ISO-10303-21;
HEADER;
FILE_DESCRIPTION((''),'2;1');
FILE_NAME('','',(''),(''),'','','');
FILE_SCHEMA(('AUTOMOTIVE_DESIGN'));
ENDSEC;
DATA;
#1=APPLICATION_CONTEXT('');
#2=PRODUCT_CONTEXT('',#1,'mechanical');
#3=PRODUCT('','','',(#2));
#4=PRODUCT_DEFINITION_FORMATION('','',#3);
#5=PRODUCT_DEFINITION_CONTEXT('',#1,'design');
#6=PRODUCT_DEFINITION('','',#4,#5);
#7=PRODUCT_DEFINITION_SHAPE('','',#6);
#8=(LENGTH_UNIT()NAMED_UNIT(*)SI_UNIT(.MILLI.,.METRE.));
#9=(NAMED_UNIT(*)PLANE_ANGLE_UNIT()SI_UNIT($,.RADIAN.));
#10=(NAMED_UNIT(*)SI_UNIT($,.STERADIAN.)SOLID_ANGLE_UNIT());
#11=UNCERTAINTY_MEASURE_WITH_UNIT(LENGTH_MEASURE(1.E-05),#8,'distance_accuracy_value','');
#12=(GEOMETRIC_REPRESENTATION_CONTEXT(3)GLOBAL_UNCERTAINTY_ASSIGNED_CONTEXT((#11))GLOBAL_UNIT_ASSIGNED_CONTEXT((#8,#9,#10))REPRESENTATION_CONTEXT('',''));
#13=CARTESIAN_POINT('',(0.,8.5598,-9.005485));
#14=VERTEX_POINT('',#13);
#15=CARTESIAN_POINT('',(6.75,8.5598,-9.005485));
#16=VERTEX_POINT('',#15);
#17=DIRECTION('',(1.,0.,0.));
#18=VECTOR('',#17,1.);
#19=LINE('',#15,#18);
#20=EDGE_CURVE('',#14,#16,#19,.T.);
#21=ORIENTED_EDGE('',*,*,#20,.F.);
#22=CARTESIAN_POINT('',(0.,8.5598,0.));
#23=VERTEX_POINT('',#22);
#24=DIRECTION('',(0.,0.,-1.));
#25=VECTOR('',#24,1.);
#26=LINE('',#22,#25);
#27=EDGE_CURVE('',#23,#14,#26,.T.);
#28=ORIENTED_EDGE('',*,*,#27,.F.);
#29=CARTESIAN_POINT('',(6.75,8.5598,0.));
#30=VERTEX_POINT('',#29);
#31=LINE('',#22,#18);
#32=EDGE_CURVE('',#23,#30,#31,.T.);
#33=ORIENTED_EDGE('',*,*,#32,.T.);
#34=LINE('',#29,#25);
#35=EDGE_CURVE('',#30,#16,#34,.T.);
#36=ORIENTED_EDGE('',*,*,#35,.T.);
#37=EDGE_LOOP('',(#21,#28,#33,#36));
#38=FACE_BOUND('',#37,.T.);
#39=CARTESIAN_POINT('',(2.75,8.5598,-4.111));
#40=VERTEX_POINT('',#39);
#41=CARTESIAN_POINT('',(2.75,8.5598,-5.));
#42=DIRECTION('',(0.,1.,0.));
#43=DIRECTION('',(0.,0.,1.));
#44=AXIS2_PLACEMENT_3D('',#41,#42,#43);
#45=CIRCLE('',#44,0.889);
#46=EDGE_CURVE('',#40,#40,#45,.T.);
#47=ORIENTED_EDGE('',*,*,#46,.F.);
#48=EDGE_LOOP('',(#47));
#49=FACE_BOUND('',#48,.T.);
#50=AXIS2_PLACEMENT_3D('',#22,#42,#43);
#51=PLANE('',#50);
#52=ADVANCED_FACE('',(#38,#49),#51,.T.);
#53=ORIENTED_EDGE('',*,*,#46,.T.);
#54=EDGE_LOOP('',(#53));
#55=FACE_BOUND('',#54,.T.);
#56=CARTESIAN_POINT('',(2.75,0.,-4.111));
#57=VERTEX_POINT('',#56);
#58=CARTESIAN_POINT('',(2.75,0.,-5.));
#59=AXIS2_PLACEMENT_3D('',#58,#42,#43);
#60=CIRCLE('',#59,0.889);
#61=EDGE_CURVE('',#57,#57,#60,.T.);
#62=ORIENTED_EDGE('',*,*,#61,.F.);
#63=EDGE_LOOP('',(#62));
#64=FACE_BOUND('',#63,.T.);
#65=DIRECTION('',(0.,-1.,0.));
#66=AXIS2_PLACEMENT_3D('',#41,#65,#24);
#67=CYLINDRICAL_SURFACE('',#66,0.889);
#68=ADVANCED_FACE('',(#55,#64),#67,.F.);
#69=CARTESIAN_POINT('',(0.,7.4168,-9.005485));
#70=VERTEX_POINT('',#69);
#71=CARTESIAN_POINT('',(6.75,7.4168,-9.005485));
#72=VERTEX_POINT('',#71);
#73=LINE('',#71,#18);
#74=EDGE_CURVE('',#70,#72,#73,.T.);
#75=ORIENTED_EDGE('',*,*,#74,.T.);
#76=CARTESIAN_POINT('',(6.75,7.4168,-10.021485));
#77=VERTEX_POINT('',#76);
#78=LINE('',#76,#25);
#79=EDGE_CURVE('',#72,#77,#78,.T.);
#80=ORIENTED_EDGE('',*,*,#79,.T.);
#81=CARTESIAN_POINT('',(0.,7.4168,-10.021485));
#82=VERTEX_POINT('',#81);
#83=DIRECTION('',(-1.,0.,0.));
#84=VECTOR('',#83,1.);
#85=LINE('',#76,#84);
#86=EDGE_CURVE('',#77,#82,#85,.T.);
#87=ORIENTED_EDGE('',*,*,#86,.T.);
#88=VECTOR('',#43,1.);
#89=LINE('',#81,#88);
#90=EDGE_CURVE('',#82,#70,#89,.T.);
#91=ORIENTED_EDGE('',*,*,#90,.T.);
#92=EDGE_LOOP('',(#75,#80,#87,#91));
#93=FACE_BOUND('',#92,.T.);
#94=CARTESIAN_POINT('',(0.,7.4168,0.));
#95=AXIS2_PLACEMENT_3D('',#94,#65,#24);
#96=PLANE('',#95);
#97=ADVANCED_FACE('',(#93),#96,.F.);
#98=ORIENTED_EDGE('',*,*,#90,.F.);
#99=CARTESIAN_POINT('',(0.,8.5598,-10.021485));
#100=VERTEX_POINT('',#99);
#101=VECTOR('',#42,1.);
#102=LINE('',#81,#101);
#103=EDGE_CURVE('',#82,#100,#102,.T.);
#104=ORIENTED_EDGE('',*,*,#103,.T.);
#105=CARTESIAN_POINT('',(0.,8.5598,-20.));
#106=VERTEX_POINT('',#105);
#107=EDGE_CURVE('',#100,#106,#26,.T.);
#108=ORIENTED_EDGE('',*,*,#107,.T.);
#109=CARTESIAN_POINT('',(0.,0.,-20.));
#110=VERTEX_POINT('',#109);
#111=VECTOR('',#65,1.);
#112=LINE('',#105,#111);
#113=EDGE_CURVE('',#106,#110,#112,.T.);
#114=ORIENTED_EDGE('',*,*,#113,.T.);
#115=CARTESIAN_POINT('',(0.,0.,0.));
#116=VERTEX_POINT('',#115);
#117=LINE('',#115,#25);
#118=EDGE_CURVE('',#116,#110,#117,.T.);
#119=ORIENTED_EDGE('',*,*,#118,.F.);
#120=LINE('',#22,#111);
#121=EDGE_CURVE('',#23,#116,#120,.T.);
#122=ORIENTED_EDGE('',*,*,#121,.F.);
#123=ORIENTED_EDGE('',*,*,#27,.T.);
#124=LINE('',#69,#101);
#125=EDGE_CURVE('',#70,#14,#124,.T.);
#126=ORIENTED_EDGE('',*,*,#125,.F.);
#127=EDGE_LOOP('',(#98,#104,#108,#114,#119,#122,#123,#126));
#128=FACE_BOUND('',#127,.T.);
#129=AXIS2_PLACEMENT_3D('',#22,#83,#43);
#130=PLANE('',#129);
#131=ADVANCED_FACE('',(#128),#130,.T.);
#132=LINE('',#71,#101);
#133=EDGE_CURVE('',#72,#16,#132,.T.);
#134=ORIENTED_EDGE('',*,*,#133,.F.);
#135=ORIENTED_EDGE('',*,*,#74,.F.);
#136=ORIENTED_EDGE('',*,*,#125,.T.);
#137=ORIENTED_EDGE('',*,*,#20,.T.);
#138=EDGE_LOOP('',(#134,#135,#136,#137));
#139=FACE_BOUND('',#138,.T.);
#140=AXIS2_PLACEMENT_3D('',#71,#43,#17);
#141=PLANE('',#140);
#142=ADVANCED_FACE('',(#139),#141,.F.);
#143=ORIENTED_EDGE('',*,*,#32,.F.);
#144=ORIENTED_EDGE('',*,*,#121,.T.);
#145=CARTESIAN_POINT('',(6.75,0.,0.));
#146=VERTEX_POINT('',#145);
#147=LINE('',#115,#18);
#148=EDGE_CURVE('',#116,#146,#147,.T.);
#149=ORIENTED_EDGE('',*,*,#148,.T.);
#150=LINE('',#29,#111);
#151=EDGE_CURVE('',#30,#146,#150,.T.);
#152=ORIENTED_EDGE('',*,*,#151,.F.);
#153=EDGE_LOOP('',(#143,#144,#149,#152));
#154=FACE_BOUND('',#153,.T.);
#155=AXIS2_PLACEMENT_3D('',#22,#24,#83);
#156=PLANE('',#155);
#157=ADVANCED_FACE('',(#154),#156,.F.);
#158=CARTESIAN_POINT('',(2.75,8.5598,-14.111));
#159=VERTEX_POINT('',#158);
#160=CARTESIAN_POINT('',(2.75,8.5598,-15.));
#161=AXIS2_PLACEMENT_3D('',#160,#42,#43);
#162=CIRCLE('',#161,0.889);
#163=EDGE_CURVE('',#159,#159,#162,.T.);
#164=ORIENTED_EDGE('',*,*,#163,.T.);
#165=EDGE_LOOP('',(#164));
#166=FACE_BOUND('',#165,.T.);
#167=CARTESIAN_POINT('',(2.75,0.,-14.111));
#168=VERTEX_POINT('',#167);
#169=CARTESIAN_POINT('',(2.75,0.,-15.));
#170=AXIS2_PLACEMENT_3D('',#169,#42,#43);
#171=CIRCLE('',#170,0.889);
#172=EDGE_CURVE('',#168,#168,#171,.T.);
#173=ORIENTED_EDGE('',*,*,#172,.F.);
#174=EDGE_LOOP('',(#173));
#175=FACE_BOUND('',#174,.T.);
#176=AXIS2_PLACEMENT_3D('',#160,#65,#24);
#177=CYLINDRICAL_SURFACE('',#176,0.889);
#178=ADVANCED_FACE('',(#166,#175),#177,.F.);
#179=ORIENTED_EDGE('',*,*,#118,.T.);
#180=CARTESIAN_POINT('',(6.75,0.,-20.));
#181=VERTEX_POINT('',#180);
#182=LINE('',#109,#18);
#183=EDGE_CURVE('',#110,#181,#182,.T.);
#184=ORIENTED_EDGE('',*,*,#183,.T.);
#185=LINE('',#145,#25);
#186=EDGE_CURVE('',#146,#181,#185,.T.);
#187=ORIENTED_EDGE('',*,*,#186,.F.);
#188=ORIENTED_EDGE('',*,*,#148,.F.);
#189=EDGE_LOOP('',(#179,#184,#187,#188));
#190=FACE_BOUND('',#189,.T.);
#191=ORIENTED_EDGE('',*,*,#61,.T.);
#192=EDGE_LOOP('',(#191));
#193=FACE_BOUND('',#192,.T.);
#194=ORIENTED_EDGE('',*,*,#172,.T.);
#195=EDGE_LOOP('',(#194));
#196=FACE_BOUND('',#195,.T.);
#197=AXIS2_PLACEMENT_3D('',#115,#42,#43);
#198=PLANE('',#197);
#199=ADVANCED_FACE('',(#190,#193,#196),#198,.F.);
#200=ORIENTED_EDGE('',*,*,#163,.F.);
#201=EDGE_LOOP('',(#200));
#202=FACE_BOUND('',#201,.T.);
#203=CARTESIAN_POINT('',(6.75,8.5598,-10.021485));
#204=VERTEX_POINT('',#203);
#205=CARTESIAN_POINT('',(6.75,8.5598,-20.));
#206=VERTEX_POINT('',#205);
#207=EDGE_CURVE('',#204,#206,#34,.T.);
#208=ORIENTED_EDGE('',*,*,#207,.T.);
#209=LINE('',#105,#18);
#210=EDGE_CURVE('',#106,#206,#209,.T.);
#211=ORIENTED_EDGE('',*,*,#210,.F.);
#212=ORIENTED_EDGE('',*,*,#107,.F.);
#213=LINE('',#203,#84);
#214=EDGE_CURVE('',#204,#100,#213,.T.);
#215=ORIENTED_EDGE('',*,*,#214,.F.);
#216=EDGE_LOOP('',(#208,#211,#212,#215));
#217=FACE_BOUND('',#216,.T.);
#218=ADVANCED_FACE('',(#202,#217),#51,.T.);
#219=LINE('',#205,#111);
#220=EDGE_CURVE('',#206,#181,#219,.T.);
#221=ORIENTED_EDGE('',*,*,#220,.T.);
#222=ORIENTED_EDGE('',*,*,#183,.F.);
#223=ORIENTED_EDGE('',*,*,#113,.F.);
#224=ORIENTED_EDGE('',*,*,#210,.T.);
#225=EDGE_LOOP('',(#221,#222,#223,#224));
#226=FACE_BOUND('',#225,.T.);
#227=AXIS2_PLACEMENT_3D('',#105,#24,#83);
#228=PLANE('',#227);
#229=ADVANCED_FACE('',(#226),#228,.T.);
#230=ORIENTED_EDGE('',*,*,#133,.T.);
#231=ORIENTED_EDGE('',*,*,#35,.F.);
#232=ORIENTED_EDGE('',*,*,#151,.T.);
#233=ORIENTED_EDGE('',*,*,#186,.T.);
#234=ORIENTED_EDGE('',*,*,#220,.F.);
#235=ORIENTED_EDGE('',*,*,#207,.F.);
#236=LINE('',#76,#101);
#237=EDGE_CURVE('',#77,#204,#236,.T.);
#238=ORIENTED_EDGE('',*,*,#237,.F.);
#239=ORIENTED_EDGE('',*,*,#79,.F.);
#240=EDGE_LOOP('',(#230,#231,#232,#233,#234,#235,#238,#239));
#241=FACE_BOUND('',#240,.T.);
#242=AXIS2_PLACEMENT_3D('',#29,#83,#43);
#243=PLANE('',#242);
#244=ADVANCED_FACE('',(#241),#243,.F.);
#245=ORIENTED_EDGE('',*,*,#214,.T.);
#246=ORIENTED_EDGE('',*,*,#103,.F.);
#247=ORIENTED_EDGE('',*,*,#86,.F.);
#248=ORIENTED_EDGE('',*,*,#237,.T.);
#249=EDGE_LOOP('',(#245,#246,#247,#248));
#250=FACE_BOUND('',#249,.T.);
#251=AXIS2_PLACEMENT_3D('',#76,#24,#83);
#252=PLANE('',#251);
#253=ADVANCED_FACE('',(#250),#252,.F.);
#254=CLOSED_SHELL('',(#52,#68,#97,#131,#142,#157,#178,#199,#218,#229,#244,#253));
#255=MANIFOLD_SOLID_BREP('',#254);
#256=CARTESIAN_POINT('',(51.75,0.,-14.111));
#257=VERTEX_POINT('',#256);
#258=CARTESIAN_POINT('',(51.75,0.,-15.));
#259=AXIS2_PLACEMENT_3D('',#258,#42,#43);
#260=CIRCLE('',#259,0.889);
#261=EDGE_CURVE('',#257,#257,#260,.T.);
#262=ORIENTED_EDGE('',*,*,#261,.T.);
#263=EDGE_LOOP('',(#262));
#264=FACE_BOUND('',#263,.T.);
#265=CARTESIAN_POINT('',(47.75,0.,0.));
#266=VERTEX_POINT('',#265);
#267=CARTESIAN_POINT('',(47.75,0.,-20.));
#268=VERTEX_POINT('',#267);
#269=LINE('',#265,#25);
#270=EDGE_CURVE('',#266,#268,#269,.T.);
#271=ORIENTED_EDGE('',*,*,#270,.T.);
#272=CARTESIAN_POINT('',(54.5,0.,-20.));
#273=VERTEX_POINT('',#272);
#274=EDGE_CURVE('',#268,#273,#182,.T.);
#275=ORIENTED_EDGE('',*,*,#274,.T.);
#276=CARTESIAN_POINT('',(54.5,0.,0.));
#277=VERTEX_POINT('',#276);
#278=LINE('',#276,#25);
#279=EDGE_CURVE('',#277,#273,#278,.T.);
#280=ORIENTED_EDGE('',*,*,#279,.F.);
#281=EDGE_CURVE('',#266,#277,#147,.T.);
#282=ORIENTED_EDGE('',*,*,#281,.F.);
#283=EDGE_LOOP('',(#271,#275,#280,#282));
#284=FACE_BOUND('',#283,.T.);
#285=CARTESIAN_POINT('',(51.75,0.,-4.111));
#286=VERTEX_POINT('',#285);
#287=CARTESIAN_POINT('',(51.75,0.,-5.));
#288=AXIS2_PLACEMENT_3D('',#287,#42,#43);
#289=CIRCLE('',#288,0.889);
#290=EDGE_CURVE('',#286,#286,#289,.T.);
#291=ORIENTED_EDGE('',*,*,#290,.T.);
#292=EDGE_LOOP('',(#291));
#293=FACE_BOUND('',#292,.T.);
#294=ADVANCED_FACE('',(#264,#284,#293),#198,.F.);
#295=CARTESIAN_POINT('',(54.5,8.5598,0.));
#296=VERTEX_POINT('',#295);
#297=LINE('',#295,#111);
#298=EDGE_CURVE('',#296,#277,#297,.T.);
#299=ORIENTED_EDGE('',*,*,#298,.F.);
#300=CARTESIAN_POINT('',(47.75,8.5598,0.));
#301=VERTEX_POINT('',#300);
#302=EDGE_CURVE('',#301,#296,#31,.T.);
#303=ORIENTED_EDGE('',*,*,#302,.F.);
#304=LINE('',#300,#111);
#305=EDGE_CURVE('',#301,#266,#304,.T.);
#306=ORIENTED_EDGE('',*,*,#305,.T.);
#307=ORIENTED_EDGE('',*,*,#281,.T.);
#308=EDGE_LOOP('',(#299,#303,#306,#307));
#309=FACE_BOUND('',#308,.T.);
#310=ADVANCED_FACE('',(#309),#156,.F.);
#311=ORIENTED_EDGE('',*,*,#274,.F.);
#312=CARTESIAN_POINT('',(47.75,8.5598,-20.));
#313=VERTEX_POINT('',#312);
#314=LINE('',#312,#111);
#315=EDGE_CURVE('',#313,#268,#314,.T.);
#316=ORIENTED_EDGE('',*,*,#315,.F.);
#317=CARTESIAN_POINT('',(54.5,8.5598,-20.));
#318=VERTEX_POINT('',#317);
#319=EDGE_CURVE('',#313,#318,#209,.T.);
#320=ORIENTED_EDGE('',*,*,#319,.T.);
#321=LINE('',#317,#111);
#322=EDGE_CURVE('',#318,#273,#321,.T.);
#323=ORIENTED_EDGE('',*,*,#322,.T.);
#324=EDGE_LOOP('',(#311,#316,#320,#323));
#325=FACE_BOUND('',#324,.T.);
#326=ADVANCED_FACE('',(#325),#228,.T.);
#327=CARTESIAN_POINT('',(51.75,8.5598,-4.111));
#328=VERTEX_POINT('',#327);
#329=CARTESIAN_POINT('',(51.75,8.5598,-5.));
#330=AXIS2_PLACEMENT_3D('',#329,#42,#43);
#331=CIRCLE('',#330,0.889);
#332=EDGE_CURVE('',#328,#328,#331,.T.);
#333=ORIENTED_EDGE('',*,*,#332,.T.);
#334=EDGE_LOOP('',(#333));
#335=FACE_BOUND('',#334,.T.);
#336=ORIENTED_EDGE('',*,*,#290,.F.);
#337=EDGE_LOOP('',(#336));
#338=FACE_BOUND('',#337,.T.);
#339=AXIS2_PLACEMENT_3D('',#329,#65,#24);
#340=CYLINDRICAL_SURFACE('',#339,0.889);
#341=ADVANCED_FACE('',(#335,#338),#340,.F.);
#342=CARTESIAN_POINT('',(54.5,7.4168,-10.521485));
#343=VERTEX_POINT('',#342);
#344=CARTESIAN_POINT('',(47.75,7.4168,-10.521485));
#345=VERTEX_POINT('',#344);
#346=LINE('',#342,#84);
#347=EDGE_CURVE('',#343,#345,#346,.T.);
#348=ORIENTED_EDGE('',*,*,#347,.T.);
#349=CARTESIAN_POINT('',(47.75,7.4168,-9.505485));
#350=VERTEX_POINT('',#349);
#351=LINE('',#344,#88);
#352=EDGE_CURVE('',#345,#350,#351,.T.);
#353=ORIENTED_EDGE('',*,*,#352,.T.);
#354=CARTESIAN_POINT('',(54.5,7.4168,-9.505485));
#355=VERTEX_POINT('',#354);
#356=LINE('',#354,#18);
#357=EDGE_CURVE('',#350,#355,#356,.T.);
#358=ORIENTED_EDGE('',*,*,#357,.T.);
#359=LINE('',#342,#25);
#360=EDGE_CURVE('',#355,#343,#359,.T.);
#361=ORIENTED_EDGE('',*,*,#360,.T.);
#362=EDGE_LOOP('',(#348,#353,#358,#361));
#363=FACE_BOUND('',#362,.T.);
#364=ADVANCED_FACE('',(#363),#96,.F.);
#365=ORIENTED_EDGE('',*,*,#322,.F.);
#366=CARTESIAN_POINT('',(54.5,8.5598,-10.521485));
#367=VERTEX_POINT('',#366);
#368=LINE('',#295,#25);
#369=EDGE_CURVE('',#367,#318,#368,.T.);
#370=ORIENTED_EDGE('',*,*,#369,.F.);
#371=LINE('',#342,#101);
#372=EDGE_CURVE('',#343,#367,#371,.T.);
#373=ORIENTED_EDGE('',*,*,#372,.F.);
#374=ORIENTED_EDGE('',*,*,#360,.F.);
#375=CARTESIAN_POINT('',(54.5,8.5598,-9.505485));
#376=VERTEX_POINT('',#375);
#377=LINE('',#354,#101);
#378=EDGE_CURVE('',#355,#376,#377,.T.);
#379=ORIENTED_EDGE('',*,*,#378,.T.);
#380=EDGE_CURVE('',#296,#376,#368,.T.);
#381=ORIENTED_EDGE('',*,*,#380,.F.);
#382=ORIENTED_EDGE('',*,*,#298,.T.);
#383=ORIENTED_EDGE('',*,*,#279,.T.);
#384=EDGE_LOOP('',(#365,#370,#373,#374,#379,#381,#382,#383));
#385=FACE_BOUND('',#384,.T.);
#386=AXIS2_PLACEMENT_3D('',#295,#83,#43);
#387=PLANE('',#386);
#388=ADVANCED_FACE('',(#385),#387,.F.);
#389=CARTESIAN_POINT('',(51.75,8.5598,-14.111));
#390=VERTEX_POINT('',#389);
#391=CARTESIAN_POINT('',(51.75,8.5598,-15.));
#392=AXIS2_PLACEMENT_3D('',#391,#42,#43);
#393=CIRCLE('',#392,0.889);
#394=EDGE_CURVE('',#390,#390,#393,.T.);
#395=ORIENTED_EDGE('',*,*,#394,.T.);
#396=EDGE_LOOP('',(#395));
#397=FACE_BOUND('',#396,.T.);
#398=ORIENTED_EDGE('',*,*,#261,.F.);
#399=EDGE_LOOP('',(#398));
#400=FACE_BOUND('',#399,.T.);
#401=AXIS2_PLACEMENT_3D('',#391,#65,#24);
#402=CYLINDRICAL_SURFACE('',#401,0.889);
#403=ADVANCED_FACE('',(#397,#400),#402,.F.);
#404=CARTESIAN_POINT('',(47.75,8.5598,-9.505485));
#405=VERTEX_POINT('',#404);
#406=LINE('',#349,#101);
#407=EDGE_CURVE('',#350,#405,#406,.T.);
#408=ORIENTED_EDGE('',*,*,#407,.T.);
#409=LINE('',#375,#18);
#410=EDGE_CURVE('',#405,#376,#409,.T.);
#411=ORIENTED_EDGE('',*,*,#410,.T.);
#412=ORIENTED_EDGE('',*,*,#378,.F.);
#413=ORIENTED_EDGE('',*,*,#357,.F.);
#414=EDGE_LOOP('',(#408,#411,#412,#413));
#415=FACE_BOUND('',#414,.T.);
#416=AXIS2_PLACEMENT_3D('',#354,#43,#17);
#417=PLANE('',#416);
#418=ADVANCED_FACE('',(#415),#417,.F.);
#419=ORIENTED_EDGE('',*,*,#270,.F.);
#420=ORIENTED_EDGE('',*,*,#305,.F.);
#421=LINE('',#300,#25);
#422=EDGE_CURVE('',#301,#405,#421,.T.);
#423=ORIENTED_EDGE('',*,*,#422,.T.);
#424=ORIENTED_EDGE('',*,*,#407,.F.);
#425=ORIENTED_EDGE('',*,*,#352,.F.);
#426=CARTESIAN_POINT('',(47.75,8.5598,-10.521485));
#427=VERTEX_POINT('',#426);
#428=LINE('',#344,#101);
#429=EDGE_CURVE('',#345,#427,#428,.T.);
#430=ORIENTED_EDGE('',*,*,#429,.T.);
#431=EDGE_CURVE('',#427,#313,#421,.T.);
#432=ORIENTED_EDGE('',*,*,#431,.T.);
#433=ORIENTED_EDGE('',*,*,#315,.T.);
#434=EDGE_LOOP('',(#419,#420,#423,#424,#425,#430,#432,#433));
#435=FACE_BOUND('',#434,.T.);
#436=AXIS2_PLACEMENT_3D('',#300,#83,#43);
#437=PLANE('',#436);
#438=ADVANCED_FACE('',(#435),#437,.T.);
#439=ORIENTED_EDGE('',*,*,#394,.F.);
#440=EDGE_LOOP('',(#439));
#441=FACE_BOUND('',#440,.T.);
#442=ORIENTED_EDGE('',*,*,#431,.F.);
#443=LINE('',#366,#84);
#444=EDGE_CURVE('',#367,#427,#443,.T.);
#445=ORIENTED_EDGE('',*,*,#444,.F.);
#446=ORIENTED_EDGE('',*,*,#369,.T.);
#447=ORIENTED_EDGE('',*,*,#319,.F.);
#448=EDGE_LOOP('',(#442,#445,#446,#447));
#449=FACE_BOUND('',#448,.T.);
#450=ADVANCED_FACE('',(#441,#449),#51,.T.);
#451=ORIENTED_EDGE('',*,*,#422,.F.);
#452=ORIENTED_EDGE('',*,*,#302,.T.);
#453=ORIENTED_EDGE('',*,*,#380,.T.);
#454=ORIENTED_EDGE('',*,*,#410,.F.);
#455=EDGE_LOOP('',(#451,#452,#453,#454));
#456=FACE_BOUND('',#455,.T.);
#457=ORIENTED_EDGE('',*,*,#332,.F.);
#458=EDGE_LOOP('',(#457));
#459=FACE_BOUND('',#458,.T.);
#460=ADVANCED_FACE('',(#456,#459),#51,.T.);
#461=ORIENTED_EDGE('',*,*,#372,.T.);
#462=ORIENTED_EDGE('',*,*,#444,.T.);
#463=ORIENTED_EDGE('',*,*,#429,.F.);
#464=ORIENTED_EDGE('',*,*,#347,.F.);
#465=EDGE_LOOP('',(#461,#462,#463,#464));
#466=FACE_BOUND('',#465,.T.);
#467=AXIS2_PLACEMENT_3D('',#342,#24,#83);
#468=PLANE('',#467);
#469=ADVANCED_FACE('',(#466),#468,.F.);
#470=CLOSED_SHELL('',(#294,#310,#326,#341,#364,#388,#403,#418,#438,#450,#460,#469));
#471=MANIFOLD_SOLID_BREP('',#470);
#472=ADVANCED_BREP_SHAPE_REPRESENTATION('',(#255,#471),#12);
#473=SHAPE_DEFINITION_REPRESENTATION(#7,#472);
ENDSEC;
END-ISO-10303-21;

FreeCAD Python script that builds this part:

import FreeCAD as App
import Part
import Sketcher
from FreeCAD import Vector
Q = App.Units.Quantity


def add_polygon(sketch, points):
    """Adds a closed chain of lines whose ends are joined by coincident constraints."""
    first, n = sketch.GeometryCount, len(points)
    for a, b in zip(points, points[1:] + points[:1]):
        sketch.addGeometry(Part.LineSegment(App.Vector(*a, 0), App.Vector(*b, 0)), False)
    for i in range(n):
        sketch.addConstraint(Sketcher.Constraint("Coincident", first + i, 2, first + (i + 1) % n, 1))

doc = App.newDocument("Part")
body = doc.addObject("PartDesign::Body", "Body")

# Sketch on XZ plane
sketch1 = doc.addObject("Sketcher::SketchObject", "Sketch")
body.addObject(sketch1)
sketch1.AttachmentSupport = (doc.XZ_Plane, [""])
sketch1.MapMode = "FlatFace"
add_polygon(sketch1, [(0, -20), (0, 0), (6.75, 0), (6.75, -20)])  # lines 0-3
sketch1.addGeometry(Part.Circle(Vector(2.75, -5, 0), Vector(0, 0, 1), 0.889), False)  # 4
sketch1.addGeometry(Part.Circle(Vector(2.75, -15, 0), Vector(0, 0, 1), 0.889), False)  # 5
sketch1.addConstraint([
    Sketcher.Constraint("Vertical", 0),
    Sketcher.Constraint("Horizontal", 1),
    Sketcher.Constraint("Vertical", 2),
    Sketcher.Constraint("Horizontal", 3),
    Sketcher.Constraint("Coincident", 0, 2, -1, 1),
    Sketcher.Constraint("Equal", 4, 5),
    Sketcher.Constraint("Vertical", 4, 3, 5, 3),
    Sketcher.Constraint("Diameter", 4, Q("0.07 in")),
    Sketcher.Constraint("DistanceX", 1, 1, 1, 2, 6.75),
    Sketcher.Constraint("DistanceY", 0, 1, 0, 2, 20.0),
    Sketcher.Constraint("DistanceX", -1, 1, 4, 3, 2.75),
    Sketcher.Constraint("DistanceY", 4, 3, -1, 1, 5.0),
    Sketcher.Constraint("DistanceY", 5, 3, -1, 1, 15.0),
])
pad1 = doc.addObject("PartDesign::Pad", "Pad")
body.addObject(pad1)
pad1.Profile = sketch1
pad1.Length = Q("0.337 in")
pad1.Reversed = True
body2 = doc.addObject("PartDesign::Body", "Body001")

# Sketch on XZ plane
sketch2 = doc.addObject("Sketcher::SketchObject", "Sketch001")
body2.addObject(sketch2)
sketch2.AttachmentSupport = (doc.getObject("XZ_Plane001"), [""])
sketch2.MapMode = "FlatFace"
add_polygon(sketch2, [(47.75, -20), (47.75, 0), (54.5, 0), (54.5, -20)])  # lines 0-3
sketch2.addGeometry(Part.Circle(Vector(51.75, -5, 0), Vector(0, 0, 1), 0.889), False)  # 4
sketch2.addGeometry(Part.Circle(Vector(51.75, -15, 0), Vector(0, 0, 1), 0.889), False)  # 5
sketch2.addConstraint([
    Sketcher.Constraint("Vertical", 0),
    Sketcher.Constraint("Horizontal", 1),
    Sketcher.Constraint("Vertical", 2),
    Sketcher.Constraint("Horizontal", 3),
    Sketcher.Constraint("Equal", 4, 5),
    Sketcher.Constraint("PointOnObject", 0, 2, -1),
    Sketcher.Constraint("Vertical", 4, 3, 5, 3),
    Sketcher.Constraint("Diameter", 4, Q("0.07 in")),
    Sketcher.Constraint("DistanceX", 1, 1, 1, 2, 6.75),
    Sketcher.Constraint("DistanceY", 0, 1, 0, 2, 20.0),
    Sketcher.Constraint("DistanceX", -1, 1, 4, 3, 51.75),
    Sketcher.Constraint("DistanceY", 4, 3, -1, 1, 5.0),
    Sketcher.Constraint("DistanceY", 5, 3, -1, 1, 15.0),
    Sketcher.Constraint("DistanceX", -1, 1, 0, 2, 47.75),
])
pad2 = doc.addObject("PartDesign::Pad", "Pad001")
body2.addObject(pad2)
pad2.Profile = sketch2
pad2.Length = Q("0.337 in")
pad2.Reversed = True
body3 = doc.addObject("PartDesign::Body", "Body002")
body3.AllowCompound = True

# Sketch on XZ plane
sketch3 = doc.addObject("Sketcher::SketchObject", "Sketch002")
body3.addObject(sketch3)
sketch3.AttachmentSupport = (doc.getObject("XZ_Plane002"), [""])
sketch3.MapMode = "FlatFace"
sketch3.AttachmentOffset = App.Placement(Vector(0, 0, -0.337 * 25.4), App.Rotation())
add_polygon(sketch3, [(0, -10.021485), (0, -9.005485), (6.75, -9.005485), (6.75, -10.021485)])  # lines 0-3
add_polygon(sketch3, [(47.75, -10.521485), (47.75, -9.505485), (54.5, -9.505485), (54.5, -10.521485)])  # lines 4-7
sketch3.addConstraint([
    Sketcher.Constraint("Vertical", 0),
    Sketcher.Constraint("Horizontal", 1),
    Sketcher.Constraint("Vertical", 2),
    Sketcher.Constraint("Horizontal", 3),
    Sketcher.Constraint("Vertical", 4),
    Sketcher.Constraint("Horizontal", 5),
    Sketcher.Constraint("Vertical", 6),
    Sketcher.Constraint("Horizontal", 7),
    Sketcher.Constraint("PointOnObject", 0, 2, -2),
    Sketcher.Constraint("Equal", 3, 5),
    Sketcher.Constraint("Equal", 2, 4),
    Sketcher.Constraint("DistanceY", 0, 1, 0, 2, Q("0.04 in")),
    Sketcher.Constraint("DistanceX", 1, 1, 1, 2, 6.75),
    Sketcher.Constraint("DistanceX", -1, 1, 4, 2, 47.75),
    Sketcher.Constraint("DistanceY", 4, 2, 1, 2, 0.5),
    Sketcher.Constraint("DistanceY", 0, 2, -1, 1, 9.005485),
])
pad3 = doc.addObject("PartDesign::Pad", "Pad002")
body3.addObject(pad3)
pad3.Profile = sketch3
pad3.Length = Q("0.045 in")
doc.recompute()

body4 = doc.addObject("PartDesign::Body", "Body003")
body4.BaseFeature = body3
boolean = doc.addObject("PartDesign::Boolean", "Boolean")
body.addObject(boolean)
boolean.Type = "Cut"
boolean.addObjects([body4])
doc.recompute()

boolean2 = doc.addObject("PartDesign::Boolean", "Boolean001")
body2.addObject(boolean2)
boolean2.Type = "Cut"
boolean2.addObjects([body3])

doc.recompute()
